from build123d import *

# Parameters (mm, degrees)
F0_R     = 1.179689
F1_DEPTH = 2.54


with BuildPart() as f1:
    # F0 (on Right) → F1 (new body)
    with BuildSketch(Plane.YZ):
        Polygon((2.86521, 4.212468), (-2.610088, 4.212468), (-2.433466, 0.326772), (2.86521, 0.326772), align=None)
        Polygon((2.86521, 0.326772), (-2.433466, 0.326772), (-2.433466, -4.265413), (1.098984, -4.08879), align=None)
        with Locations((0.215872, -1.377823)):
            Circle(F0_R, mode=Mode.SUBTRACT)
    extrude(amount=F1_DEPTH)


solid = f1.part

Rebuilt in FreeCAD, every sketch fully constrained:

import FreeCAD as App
import Part
import Sketcher

V = App.Vector
Q = App.Units.Quantity

doc = App.newDocument("Part")
body = doc.addObject("PartDesign::Body", "Body")

# Sketch on YZ plane
sketch1 = body.newObject("Sketcher::SketchObject", "Sketch")
sketch1.AttachmentSupport = (doc.getObject("YZ_Plane"), [""])
sketch1.MapMode = "FlatFace"
sketch1.addGeometry([
    Part.LineSegment(V(2.9, 4.2, 0), V(-2.6, 4.2, 0)),  # 0
    Part.LineSegment(V(-2.6, 4.2, 0), V(-2.4, 0.3, 0)),  # 1
    Part.LineSegment(V(-2.4, 0.3, 0), V(-2.4, -4.3, 0)),  # 2
    Part.LineSegment(V(-2.4, -4.3, 0), V(1.1, -4.1, 0)),  # 3
    Part.LineSegment(V(1.1, -4.1, 0), V(2.9, 0.3, 0)),  # 4
    Part.LineSegment(V(2.9, 0.3, 0), V(2.9, 4.2, 0)),  # 5
    Part.Circle(V(0.2, -1.4, 0), V(0, 0, 1), 1.2),  # 6
], False)
sketch1.addConstraint([
    Sketcher.Constraint("Coincident", 0, 2, 1, 1),
    Sketcher.Constraint("Coincident", 1, 2, 2, 1),
    Sketcher.Constraint("Coincident", 2, 2, 3, 1),
    Sketcher.Constraint("Coincident", 3, 2, 4, 1),
    Sketcher.Constraint("Coincident", 4, 2, 5, 1),
    Sketcher.Constraint("Coincident", 5, 2, 0, 1),
    Sketcher.Constraint("Horizontal", 0),
    Sketcher.Constraint("Vertical", 2),
    Sketcher.Constraint("Vertical", 5),
    Sketcher.Constraint("Horizontal", 1, 2, 4, 2),
    Sketcher.Constraint("Diameter", 6, Q("2.359378 mm")),
    Sketcher.Constraint("DistanceX", 0, 2, 0, 1, Q("5.475298 mm")),
    Sketcher.Constraint("Distance", 1, Q("3.889708 mm")),
    Sketcher.Constraint("DistanceY", 2, 2, 2, 1, Q("4.592185 mm")),
    Sketcher.Constraint("DistanceY", 5, 1, 5, 2, Q("3.885696 mm")),
    Sketcher.Constraint("DistanceX", 0, 2, -1, 1, Q("2.610088 mm")),
    Sketcher.Constraint("DistanceY", -1, 1, 0, 2, Q("4.212468 mm")),
    Sketcher.Constraint("DistanceY", 3, 2, -1, 1, Q("4.08879 mm")),
    Sketcher.Constraint("DistanceX", 0, 2, 6, 3, Q("2.82596 mm")),
    Sketcher.Constraint("DistanceY", 6, 3, 0, 2, Q("5.590291 mm")),
    Sketcher.Constraint("DistanceX", 6, 3, 3, 2, Q("0.883112 mm")),
])
pad1 = body.newObject("PartDesign::Pad", "Pad")
pad1.Profile = sketch1
pad1.Length = Q("0.1 in")

doc.recompute()
